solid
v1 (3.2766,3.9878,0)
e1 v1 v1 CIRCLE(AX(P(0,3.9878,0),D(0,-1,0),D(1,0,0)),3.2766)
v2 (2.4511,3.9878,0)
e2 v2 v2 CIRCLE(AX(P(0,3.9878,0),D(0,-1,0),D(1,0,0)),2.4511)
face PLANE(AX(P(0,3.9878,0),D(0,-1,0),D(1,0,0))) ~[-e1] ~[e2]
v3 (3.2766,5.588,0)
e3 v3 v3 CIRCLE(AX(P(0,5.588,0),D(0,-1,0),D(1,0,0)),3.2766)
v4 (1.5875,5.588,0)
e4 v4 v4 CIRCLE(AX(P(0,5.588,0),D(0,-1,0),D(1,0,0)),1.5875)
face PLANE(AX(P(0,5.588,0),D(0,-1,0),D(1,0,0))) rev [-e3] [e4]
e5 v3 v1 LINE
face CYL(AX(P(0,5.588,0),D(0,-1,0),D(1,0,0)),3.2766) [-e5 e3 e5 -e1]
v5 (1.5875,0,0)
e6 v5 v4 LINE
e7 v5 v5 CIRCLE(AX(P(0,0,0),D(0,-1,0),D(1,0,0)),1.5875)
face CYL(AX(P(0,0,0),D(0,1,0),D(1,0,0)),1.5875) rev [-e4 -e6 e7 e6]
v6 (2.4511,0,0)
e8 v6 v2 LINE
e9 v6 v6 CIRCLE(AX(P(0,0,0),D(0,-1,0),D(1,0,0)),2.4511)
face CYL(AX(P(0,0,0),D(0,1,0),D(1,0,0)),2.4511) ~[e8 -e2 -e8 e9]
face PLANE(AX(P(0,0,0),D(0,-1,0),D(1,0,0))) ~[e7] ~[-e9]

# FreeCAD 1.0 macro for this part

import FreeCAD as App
import Part
import Sketcher
from FreeCAD import Vector
Q = App.Units.Quantity

doc = App.newDocument("Part")
body = doc.addObject("PartDesign::Body", "Body")

# Sketch on XY plane
sketch1 = body.newObject("Sketcher::SketchObject", "Sketch")
sketch1.AttachmentSupport = (doc.getObject("XY_Plane"), [""])
sketch1.MapMode = "FlatFace"
sketch1.addGeometry([
    Part.LineSegment(Vector(1.5875, 0, 0), Vector(2.4511, 0, 0)),  # 0
    Part.LineSegment(Vector(2.4511, 0, 0), Vector(2.4511, 3.9878, 0)),  # 1
    Part.LineSegment(Vector(2.4511, 3.9878, 0), Vector(3.2766, 3.9878, 0)),  # 2
    Part.LineSegment(Vector(3.2766, 3.9878, 0), Vector(3.2766, 5.588, 0)),  # 3
    Part.LineSegment(Vector(3.2766, 5.588, 0), Vector(1.5875, 5.588, 0)),  # 4
    Part.LineSegment(Vector(1.5875, 5.588, 0), Vector(1.5875, 0, 0)),  # 5
], False)
sketch1.addConstraint([
    Sketcher.Constraint("Coincident", 0, 2, 1, 1),
    Sketcher.Constraint("Coincident", 1, 2, 2, 1),
    Sketcher.Constraint("Coincident", 2, 2, 3, 1),
    Sketcher.Constraint("Coincident", 3, 2, 4, 1),
    Sketcher.Constraint("Coincident", 4, 2, 5, 1),
    Sketcher.Constraint("Coincident", 5, 2, 0, 1),
    Sketcher.Constraint("Horizontal", 0),
    Sketcher.Constraint("Vertical", 1),
    Sketcher.Constraint("Horizontal", 2),
    Sketcher.Constraint("Vertical", 3),
    Sketcher.Constraint("Horizontal", 4),
    Sketcher.Constraint("Vertical", 5),
    Sketcher.Constraint("PointOnObject", 0, 2, -1),
    Sketcher.Constraint("DistanceY", 5, 2, 5, 1, Q("0.22 in")),
    Sketcher.Constraint("DistanceY", 1, 1, 1, 2, Q("0.157 in")),
    Sketcher.Constraint("DistanceX", -1, 1, 2, 2, Q("0.129 in")),
    Sketcher.Constraint("DistanceX", -1, 1, 4, 2, Q("0.0625 in")),
    Sketcher.Constraint("DistanceX", -1, 1, 0, 2, Q("0.0965 in")),
])
revolution = body.newObject("PartDesign::Revolution", "Revolution")
revolution.Profile = sketch1
revolution.ReferenceAxis = (sketch1, ["V_Axis"])
revolution.Angle = 360

doc.recompute()
